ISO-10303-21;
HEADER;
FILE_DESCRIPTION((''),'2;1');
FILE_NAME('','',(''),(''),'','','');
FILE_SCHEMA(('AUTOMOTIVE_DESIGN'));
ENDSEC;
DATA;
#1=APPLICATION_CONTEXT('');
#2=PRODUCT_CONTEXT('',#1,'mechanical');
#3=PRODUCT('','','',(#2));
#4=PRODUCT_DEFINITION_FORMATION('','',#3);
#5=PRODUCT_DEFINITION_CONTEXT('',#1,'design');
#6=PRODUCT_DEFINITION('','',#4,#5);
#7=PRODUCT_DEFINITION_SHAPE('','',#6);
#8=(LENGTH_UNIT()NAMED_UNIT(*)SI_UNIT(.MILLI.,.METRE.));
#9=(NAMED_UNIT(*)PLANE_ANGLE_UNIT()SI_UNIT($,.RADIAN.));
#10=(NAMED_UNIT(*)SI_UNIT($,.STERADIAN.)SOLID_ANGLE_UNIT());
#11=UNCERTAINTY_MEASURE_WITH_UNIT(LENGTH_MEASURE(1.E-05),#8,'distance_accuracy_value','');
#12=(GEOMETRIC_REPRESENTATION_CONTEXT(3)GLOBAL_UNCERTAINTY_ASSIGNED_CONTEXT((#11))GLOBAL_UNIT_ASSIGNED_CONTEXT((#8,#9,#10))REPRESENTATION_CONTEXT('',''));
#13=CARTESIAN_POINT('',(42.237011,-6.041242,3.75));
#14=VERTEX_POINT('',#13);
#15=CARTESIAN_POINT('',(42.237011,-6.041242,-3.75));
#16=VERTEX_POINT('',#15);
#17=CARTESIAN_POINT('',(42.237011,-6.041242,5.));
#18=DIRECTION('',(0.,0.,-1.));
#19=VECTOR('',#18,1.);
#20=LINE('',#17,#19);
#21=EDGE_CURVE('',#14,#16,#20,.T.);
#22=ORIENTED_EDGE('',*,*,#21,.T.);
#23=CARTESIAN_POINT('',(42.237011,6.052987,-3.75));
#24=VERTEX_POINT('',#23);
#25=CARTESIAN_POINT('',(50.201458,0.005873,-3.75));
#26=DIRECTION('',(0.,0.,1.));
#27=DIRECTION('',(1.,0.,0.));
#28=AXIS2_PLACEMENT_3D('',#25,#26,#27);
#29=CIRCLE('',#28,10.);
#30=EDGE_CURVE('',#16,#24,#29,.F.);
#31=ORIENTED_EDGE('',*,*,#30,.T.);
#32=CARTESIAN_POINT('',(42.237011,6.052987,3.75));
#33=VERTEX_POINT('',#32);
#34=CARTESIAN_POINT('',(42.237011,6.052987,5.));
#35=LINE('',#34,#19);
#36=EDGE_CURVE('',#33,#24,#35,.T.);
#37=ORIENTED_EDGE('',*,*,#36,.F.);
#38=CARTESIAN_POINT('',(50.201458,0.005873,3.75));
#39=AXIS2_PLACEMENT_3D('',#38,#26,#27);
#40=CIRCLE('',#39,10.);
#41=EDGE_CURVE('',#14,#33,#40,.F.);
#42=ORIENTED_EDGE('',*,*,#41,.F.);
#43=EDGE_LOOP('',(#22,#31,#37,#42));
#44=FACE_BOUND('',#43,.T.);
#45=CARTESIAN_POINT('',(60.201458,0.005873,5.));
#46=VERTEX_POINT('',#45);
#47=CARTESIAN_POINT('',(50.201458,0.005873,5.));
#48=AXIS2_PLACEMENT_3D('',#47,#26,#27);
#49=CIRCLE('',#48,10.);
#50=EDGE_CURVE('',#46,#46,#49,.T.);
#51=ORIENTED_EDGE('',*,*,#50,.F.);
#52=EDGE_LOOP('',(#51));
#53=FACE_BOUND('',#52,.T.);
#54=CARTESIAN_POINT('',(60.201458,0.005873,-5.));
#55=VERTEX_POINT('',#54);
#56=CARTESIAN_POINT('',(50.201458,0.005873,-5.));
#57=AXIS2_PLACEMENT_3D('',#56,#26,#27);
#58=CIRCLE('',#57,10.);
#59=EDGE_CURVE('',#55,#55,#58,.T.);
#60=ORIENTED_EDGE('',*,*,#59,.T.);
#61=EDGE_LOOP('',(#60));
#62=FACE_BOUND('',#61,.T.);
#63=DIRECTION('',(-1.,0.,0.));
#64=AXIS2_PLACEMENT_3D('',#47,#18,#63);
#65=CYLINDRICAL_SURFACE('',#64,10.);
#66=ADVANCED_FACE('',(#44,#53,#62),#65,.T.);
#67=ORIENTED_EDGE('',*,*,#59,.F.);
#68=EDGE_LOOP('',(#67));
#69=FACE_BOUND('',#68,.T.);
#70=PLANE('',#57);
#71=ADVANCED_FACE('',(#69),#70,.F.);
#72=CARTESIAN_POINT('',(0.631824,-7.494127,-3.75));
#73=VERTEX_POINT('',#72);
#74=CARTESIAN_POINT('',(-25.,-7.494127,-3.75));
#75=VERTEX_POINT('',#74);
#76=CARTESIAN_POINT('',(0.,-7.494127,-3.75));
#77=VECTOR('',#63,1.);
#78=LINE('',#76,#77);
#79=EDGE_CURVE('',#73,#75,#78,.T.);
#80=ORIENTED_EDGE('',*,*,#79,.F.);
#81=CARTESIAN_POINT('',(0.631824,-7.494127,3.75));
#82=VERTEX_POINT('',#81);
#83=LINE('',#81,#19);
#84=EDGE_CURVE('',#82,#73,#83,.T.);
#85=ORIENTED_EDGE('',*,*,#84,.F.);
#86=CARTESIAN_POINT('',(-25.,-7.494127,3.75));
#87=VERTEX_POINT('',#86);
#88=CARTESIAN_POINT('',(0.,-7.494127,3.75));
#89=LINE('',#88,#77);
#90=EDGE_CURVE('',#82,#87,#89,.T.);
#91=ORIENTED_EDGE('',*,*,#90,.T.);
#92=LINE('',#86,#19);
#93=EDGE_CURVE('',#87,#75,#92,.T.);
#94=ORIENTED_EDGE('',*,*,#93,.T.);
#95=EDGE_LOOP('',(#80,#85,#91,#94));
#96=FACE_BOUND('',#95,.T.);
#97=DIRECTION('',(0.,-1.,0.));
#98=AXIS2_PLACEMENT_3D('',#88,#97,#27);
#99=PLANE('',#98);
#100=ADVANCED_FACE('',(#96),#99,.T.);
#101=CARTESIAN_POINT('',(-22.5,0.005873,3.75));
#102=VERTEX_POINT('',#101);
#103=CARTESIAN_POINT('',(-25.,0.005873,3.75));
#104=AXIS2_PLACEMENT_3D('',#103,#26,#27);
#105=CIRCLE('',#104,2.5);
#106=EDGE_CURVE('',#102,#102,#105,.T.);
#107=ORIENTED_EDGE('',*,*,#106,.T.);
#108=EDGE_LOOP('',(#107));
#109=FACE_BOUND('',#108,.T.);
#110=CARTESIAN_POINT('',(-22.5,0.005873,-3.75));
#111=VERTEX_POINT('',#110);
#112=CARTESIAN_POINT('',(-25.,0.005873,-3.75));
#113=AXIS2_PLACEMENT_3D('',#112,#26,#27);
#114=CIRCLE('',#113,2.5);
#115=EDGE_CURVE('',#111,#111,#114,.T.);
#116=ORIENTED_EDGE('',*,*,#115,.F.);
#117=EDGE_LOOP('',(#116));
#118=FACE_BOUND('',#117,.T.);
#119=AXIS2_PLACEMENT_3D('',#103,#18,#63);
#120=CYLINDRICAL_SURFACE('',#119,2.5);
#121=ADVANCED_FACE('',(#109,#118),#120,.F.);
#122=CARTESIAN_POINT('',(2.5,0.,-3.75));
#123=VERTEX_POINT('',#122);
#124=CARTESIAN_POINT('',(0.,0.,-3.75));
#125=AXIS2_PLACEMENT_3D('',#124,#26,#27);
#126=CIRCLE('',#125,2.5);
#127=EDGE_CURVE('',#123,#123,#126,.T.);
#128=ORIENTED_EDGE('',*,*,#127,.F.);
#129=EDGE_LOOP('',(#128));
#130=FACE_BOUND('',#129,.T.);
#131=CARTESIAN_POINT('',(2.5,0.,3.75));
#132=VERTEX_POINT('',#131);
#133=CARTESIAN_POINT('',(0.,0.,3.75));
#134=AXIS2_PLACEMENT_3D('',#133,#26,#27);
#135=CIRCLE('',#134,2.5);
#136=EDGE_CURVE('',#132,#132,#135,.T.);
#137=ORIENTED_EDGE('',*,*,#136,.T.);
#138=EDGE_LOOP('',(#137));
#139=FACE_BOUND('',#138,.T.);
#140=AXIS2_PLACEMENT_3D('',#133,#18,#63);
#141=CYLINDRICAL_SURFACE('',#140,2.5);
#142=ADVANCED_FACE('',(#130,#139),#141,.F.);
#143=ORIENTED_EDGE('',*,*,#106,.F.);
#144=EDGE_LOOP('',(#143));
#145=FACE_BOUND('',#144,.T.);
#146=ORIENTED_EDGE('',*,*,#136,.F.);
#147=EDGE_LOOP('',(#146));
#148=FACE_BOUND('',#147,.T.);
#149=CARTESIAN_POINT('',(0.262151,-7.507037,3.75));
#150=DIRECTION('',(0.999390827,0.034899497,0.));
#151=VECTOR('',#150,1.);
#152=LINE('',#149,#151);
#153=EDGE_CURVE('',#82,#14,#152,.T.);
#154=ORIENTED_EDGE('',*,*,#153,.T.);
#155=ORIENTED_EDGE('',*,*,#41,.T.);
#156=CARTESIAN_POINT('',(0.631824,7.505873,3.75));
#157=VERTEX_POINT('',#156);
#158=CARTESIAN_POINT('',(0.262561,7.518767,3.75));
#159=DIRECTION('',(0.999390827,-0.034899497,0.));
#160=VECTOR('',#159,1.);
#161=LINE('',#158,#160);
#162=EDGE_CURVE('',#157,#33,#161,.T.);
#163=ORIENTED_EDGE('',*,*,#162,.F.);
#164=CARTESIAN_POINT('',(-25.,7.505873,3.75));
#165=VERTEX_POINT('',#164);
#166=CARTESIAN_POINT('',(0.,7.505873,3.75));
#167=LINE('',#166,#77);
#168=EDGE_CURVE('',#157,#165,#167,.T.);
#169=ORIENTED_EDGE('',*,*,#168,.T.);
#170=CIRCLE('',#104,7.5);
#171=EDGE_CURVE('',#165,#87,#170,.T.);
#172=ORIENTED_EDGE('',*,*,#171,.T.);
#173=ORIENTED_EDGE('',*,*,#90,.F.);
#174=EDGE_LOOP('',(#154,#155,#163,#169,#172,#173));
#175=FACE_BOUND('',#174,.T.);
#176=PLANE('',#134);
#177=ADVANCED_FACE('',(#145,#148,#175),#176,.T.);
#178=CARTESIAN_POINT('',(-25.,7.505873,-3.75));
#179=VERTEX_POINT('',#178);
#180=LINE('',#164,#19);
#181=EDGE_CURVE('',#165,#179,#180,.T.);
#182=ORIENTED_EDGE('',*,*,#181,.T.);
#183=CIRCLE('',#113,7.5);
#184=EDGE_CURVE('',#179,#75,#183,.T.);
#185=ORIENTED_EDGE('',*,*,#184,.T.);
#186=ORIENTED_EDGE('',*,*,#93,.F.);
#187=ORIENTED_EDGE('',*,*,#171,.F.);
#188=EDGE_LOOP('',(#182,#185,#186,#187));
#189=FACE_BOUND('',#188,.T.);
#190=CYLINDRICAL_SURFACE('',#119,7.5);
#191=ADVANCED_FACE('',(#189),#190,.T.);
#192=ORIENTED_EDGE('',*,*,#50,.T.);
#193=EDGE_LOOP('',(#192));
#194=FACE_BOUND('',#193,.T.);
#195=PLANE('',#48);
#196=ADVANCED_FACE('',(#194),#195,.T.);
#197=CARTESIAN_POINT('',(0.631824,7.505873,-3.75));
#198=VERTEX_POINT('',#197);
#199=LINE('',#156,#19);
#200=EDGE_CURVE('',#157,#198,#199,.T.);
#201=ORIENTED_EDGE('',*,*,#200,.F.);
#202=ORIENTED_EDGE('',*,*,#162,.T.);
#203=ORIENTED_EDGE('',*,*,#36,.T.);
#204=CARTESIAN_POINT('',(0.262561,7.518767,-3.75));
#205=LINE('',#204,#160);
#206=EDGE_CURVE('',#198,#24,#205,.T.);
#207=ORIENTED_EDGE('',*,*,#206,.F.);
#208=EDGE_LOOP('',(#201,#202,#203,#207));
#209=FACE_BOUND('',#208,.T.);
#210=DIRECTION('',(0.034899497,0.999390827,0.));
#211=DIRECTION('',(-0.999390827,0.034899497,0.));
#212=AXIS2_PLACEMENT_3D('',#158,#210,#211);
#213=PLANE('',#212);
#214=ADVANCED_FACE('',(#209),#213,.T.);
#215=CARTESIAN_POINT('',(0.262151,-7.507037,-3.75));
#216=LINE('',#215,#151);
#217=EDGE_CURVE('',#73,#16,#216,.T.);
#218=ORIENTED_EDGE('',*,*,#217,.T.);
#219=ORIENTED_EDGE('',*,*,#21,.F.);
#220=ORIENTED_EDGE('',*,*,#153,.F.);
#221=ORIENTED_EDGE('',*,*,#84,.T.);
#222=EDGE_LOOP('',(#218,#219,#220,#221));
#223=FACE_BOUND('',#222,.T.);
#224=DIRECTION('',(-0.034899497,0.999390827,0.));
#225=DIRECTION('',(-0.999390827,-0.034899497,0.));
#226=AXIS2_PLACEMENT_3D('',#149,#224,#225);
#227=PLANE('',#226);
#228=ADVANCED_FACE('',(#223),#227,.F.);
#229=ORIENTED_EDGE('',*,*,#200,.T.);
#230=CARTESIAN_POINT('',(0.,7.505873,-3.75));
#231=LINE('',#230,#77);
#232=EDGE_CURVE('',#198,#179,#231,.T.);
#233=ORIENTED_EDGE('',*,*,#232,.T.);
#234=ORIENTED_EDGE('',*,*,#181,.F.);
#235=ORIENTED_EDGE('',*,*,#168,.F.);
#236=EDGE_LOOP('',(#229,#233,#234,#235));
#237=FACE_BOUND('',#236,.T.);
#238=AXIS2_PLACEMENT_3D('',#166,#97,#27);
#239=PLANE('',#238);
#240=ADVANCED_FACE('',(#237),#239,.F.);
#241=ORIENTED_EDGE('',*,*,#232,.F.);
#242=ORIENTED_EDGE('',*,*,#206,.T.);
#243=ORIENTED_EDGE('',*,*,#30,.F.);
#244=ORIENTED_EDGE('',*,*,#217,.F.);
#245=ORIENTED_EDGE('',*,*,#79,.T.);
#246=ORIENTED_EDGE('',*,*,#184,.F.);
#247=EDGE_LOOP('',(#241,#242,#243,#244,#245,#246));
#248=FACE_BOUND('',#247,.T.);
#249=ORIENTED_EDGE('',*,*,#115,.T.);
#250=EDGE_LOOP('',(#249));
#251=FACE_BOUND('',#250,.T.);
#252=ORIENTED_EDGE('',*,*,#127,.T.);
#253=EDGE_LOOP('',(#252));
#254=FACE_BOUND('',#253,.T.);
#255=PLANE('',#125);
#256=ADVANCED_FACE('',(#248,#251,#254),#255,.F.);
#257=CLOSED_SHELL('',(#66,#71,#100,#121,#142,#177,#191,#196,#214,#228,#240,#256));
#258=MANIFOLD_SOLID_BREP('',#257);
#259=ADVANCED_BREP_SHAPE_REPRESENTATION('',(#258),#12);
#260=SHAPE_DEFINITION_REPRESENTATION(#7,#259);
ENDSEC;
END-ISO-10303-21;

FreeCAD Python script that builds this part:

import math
import FreeCAD as App
import Part
import Sketcher

V = App.Vector
Q = App.Units.Quantity

doc = App.newDocument("Part")
body = doc.addObject("PartDesign::Body", "Body")

# Sketch on XY plane
sketch1 = doc.addObject("Sketcher::SketchObject", "Sketch")
body.addObject(sketch1)
sketch1.AttachmentSupport = (doc.XY_Plane, [""])
sketch1.MapMode = "FlatFace"
sketch1.addGeometry(Part.ArcOfCircle(Part.Circle(V(-25, 0.006, 0), V(0, 0, 1), 7.5), math.radians(90), math.radians(180)), False)
sketch1.addGeometry(Part.ArcOfCircle(Part.Circle(V(-25, 0.006, 0), V(0, 0, 1), 7.5), math.radians(180), math.radians(270)), False)
sketch1.addGeometry(Part.LineSegment(V(-25, -7.494, 0), V(0.632, -7.494, 0)), False)
sketch1.addGeometry(Part.LineSegment(V(0.632, -7.494, 0), V(50.201, -5.763, 0)), False)
sketch1.addGeometry(Part.ArcOfCircle(Part.Circle(V(50, 0.006, 0), V(0, 0, 1), 5.773), math.radians(-88), math.radians(0)), False)
sketch1.addGeometry(Part.ArcOfCircle(Part.Circle(V(50, 0.006, 0), V(0, 0, 1), 5.773), math.radians(0), math.radians(88)), False)
sketch1.addGeometry(Part.LineSegment(V(50.201, 5.775, 0), V(0.632, 7.506, 0)), False)
sketch1.addGeometry(Part.LineSegment(V(0.632, 7.506, 0), V(-25, 7.506, 0)), False)
sketch1.addGeometry(Part.ArcOfCircle(Part.Circle(V(0, 0, 0), V(0, 0, 1), 2.5), math.radians(0), math.radians(0.13)), False)
sketch1.addGeometry(Part.ArcOfCircle(Part.Circle(V(0, 0, 0), V(0, 0, 1), 2.5), math.radians(-83), math.radians(0)), False)
sketch1.addGeometry(Part.ArcOfCircle(Part.Circle(V(0, 0, 0), V(0, 0, 1), 2.5), math.radians(180), math.radians(277)), False)
sketch1.addGeometry(Part.ArcOfCircle(Part.Circle(V(0, 0, 0), V(0, 0, 1), 2.5), math.radians(83), math.radians(180)), False)
sketch1.addGeometry(Part.ArcOfCircle(Part.Circle(V(0, 0, 0), V(0, 0, 1), 2.5), math.radians(0), math.radians(83)), False)
sketch1.addGeometry(Part.ArcOfCircle(Part.Circle(V(-25, 0.006, 0), V(0, 0, 1), 2.5), math.radians(-90), math.radians(0)), False)
sketch1.addGeometry(Part.ArcOfCircle(Part.Circle(V(-25, 0.006, 0), V(0, 0, 1), 2.5), math.radians(180), math.radians(270)), False)
sketch1.addGeometry(Part.ArcOfCircle(Part.Circle(V(-25, 0.006, 0), V(0, 0, 1), 2.5), math.radians(90), math.radians(180)), False)
sketch1.addGeometry(Part.ArcOfCircle(Part.Circle(V(-25, 0.006, 0), V(0, 0, 1), 2.5), math.radians(0), math.radians(90)), False)
sketch1.addConstraint(Sketcher.Constraint("Tangent", 0, 2, 1, 1))
sketch1.addConstraint(Sketcher.Constraint("Tangent", 1, 2, 2, 1))
sketch1.addConstraint(Sketcher.Constraint("Coincident", 2, 2, 3, 1))
sketch1.addConstraint(Sketcher.Constraint("Tangent", 3, 2, 4, 1))
sketch1.addConstraint(Sketcher.Constraint("Tangent", 4, 2, 5, 1))
sketch1.addConstraint(Sketcher.Constraint("Tangent", 5, 2, 6, 1))
sketch1.addConstraint(Sketcher.Constraint("Coincident", 6, 2, 7, 1))
sketch1.addConstraint(Sketcher.Constraint("Tangent", 7, 2, 0, 1))
sketch1.addConstraint(Sketcher.Constraint("Tangent", 8, 1, 9, 2))
sketch1.addConstraint(Sketcher.Constraint("Tangent", 9, 1, 10, 2))
sketch1.addConstraint(Sketcher.Constraint("Tangent", 10, 1, 11, 2))
sketch1.addConstraint(Sketcher.Constraint("Tangent", 11, 1, 12, 2))
sketch1.addConstraint(Sketcher.Constraint("Tangent", 12, 1, 8, 2))
sketch1.addConstraint(Sketcher.Constraint("Tangent", 13, 1, 14, 2))
sketch1.addConstraint(Sketcher.Constraint("Tangent", 14, 1, 15, 2))
sketch1.addConstraint(Sketcher.Constraint("Tangent", 15, 1, 16, 2))
sketch1.addConstraint(Sketcher.Constraint("Tangent", 16, 1, 13, 2))
sketch1.addConstraint(Sketcher.Constraint("Horizontal", 2))
sketch1.addConstraint(Sketcher.Constraint("Horizontal", 7))
sketch1.addConstraint(Sketcher.Constraint("Coincident", 9, 3, -1, 1))
sketch1.addConstraint(Sketcher.Constraint("Coincident", 13, 3, 0, 3))
sketch1.addConstraint(Sketcher.Constraint("Equal", 0, 1))
sketch1.addConstraint(Sketcher.Constraint("Equal", 4, 5))
sketch1.addConstraint(Sketcher.Constraint("Equal", 9, 10))
sketch1.addConstraint(Sketcher.Constraint("Equal", 12, 13))
sketch1.addConstraint(Sketcher.Constraint("Equal", 13, 14))
sketch1.addConstraint(Sketcher.Constraint("PointOnObject", 8, 1, -1))
sketch1.addConstraint(Sketcher.Constraint("Horizontal", 1, 3, 4, 3))
sketch1.addConstraint(Sketcher.Constraint("Horizontal", 16, 3, 0, 2))
sketch1.addConstraint(Sketcher.Constraint("Horizontal", 0, 2, 4, 2))
sketch1.addConstraint(Sketcher.Constraint("Horizontal", 4, 2, 10, 1))
sketch1.addConstraint(Sketcher.Constraint("Horizontal", 10, 1, 12, 1))
sketch1.addConstraint(Sketcher.Constraint("Horizontal", 12, 1, 14, 1))
sketch1.addConstraint(Sketcher.Constraint("Horizontal", 14, 1, 16, 1))
sketch1.addConstraint(Sketcher.Constraint("Vertical", 2, 2, 6, 2))
sketch1.addConstraint(Sketcher.Constraint("Vertical", 9, 1, 11, 1))
sketch1.addConstraint(Sketcher.Constraint("Vertical", 7, 2, 13, 1))
sketch1.addConstraint(Sketcher.Constraint("Vertical", 13, 1, 15, 1))
sketch1.addConstraint(Sketcher.Constraint("Radius", 0, 7.5))
sketch1.addConstraint(Sketcher.Constraint("Radius", 9, 2.5))
sketch1.addConstraint(Sketcher.Constraint("Angle", 3, Q("2 deg")))
sketch1.addConstraint(Sketcher.Constraint("DistanceX", 0, 3, -1, 1, 25.0))
sketch1.addConstraint(Sketcher.Constraint("DistanceX", -1, 1, 4, 3, 50.0))
sketch1.addConstraint(Sketcher.Constraint("Radius", 4, 5.772507))
sketch1.addConstraint(Sketcher.Constraint("Radius", 8, 2.499764))
sketch1.addConstraint(Sketcher.Constraint("DistanceX", 8, 3, 9, 1, 0.296502))
sketch1.addConstraint(Sketcher.Constraint("DistanceY", 3, 2, 8, 3, 5.763118))
pad1 = doc.addObject("PartDesign::Pad", "Pad")
body.addObject(pad1)
pad1.Profile = sketch1
pad1.Length = 7.5
pad1.Midplane = True

# Sketch on XY plane
sketch2 = doc.addObject("Sketcher::SketchObject", "Sketch001")
body.addObject(sketch2)
sketch2.AttachmentSupport = (doc.XY_Plane, [""])
sketch2.MapMode = "FlatFace"
sketch2.addGeometry(Part.Circle(V(50, 0, 0), V(0, 0, 1), 10), False)
sketch2.addConstraint(Sketcher.Constraint("Diameter", 0, 20.0))
sketch2.addConstraint(Sketcher.Constraint("DistanceX", -1, 1, 0, 3, 50.201458))
sketch2.addConstraint(Sketcher.Constraint("DistanceY", -1, 1, 0, 3, 0.005873))
pad2 = doc.addObject("PartDesign::Pad", "Pad001")
body.addObject(pad2)
pad2.Profile = sketch2
pad2.Length = 10
pad2.Midplane = True

doc.recompute()
